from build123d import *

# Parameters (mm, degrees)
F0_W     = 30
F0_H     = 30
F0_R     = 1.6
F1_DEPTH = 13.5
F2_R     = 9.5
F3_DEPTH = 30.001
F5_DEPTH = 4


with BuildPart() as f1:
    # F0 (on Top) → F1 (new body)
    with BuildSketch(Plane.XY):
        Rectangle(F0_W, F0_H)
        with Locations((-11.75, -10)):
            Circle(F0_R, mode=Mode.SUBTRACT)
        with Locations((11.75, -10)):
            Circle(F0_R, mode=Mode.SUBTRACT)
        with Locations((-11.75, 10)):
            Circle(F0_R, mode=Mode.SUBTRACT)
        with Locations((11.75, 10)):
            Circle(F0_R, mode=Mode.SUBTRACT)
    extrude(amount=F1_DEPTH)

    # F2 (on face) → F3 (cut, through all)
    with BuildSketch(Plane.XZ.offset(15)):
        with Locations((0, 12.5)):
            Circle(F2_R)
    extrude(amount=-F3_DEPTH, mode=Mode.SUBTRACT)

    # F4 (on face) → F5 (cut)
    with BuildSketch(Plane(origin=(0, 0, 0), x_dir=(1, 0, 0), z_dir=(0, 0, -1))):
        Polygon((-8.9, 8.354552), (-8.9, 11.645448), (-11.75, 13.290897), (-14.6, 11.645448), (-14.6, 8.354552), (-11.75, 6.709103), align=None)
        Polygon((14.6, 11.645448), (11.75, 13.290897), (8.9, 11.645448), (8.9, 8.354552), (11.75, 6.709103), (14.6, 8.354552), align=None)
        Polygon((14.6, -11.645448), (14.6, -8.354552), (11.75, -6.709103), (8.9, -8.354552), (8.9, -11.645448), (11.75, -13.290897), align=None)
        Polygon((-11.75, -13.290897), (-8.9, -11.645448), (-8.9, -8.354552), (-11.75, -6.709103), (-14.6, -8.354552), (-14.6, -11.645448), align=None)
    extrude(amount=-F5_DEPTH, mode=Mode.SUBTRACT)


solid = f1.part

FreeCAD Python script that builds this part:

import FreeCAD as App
import Part
import Sketcher
from FreeCAD import Vector
Q = App.Units.Quantity


def add_polygon(sketch, points):
    """Adds a closed chain of lines whose ends are joined by coincident constraints."""
    first, n = sketch.GeometryCount, len(points)
    for a, b in zip(points, points[1:] + points[:1]):
        sketch.addGeometry(Part.LineSegment(App.Vector(*a, 0), App.Vector(*b, 0)), False)
    for i in range(n):
        sketch.addConstraint(Sketcher.Constraint("Coincident", first + i, 2, first + (i + 1) % n, 1))

doc = App.newDocument("Part")
body = doc.addObject("PartDesign::Body", "Body")

sketch1 = body.newObject("Sketcher::SketchObject", "Sketch")
sketch1.AttachmentSupport = (doc.getObject("XY_Plane"), [""])
sketch1.MapMode = "FlatFace"
add_polygon(sketch1, [(-15, 15), (-15, -15), (15, -15), (15, 15)])
sketch1.addGeometry(Part.Circle(Vector(-11.8, -10, 0), Vector(0, 0, 1), 1.6), False)
sketch1.addGeometry(Part.Circle(Vector(11.8, -10, 0), Vector(0, 0, 1), 1.6), False)
sketch1.addGeometry(Part.Circle(Vector(-11.8, 10, 0), Vector(0, 0, 1), 1.6), False)
sketch1.addGeometry(Part.Circle(Vector(11.8, 10, 0), Vector(0, 0, 1), 1.6), False)
sketch1.addConstraint([
    Sketcher.Constraint("Vertical", 0),
    Sketcher.Constraint("Horizontal", 1),
    Sketcher.Constraint("Vertical", 2),
    Sketcher.Constraint("Horizontal", 3),
    Sketcher.Constraint("Equal", 4, 5),
    Sketcher.Constraint("Equal", 5, 6),
    Sketcher.Constraint("Equal", 6, 7),
    Sketcher.Constraint("Symmetric", 5, 3, 6, 3, -1, 1),
    Sketcher.Constraint("Symmetric", 4, 3, 7, 3, -1, 1),
    Sketcher.Constraint("Symmetric", 0, 2, 2, 2, -1, 1),
    Sketcher.Constraint("Symmetric", 4, 3, 5, 3, -2),
    Sketcher.Constraint("Equal", 3, 0),
    Sketcher.Constraint("Diameter", 4, Q("3.2 mm")),
    Sketcher.Constraint("DistanceX", 1, 1, 1, 2, Q("30 mm")),
    Sketcher.Constraint("DistanceY", 4, 3, -1, 1, Q("10 mm")),
    Sketcher.Constraint("DistanceX", 4, 3, 5, 3, Q("23.5 mm")),
])
pad1 = body.newObject("PartDesign::Pad", "Pad")
pad1.Profile = sketch1
pad1.Length = 13.5

sketch2 = body.newObject("Sketcher::SketchObject", "Sketch001")
sketch2.AttachmentSupport = (doc.getObject("XZ_Plane"), [""])
sketch2.MapMode = "FlatFace"
sketch2.AttachmentOffset = App.Placement(Vector(0, 0, 15), App.Rotation())
sketch2.addGeometry(Part.Circle(Vector(0, 12, 0), Vector(0, 0, 1), 10), False)
sketch2.addConstraint([
    Sketcher.Constraint("PointOnObject", 0, 3, -2),
    Sketcher.Constraint("Diameter", 0, Q("19 mm")),
    Sketcher.Constraint("DistanceY", -1, 1, 0, 3, Q("12.5 mm")),
])
pocket1 = body.newObject("PartDesign::Pocket", "Pocket")
pocket1.Profile = sketch2
pocket1.Type = "ThroughAll"

sketch3 = body.newObject("Sketcher::SketchObject", "Sketch002")
sketch3.AttachmentSupport = (doc.getObject("XY_Plane"), [""])
sketch3.MapMode = "FlatFace"
add_polygon(sketch3, [(-8.9, -8.4), (-8.9, -11.6), (-11.8, -13.3), (-14.6, -11.6), (-14.6, -8.4), (-11.8, -6.7)])
add_polygon(sketch3, [(14.6, -11.6), (11.8, -13.3), (8.9, -11.6), (8.9, -8.4), (11.8, -6.7), (14.6, -8.4)])
add_polygon(sketch3, [(14.6, 11.6), (14.6, 8.4), (11.8, 6.7), (8.9, 8.4), (8.9, 11.6), (11.8, 13.3)])
add_polygon(sketch3, [(-11.8, 13.3), (-8.9, 11.6), (-8.9, 8.4), (-11.8, 6.7), (-14.6, 8.4), (-14.6, 11.6)])
sketch3.addConstraint([
    Sketcher.Constraint("Vertical", 0),
    Sketcher.Constraint("Vertical", 3),
    Sketcher.Constraint("Vertical", 8),
    Sketcher.Constraint("Vertical", 11),
    Sketcher.Constraint("Vertical", 12),
    Sketcher.Constraint("Vertical", 15),
    Sketcher.Constraint("Vertical", 19),
    Sketcher.Constraint("Vertical", 22),
    Sketcher.Constraint("Symmetric", 3, 2, 12, 2, -1, 1),
    Sketcher.Constraint("Symmetric", 4, 2, 13, 2, -1, 1),
    Sketcher.Constraint("Symmetric", 5, 2, 14, 2, -1, 1),
    Sketcher.Constraint("Symmetric", 1, 2, 16, 2, -1, 1),
    Sketcher.Constraint("Symmetric", 7, 2, 18, 2, -1, 1),
    Sketcher.Constraint("Symmetric", 9, 2, 20, 2, -1, 1),
    Sketcher.Constraint("Symmetric", 10, 2, 21, 2, -1, 1),
    Sketcher.Constraint("Symmetric", 6, 2, 23, 2, -1, 1),
    Sketcher.Constraint("Symmetric", 1, 2, 6, 2, -2),
    Sketcher.Constraint("Symmetric", 0, 2, 7, 2, -2),
    Sketcher.Constraint("Symmetric", 4, 2, 9, 2, -2),
    Sketcher.Constraint("Symmetric", 3, 2, 10, 2, -2),
    Sketcher.Constraint("Parallel", 1, 4),
    Sketcher.Constraint("Parallel", 2, 5),
    Sketcher.Constraint("Parallel", 4, 6),
    Sketcher.Constraint("Parallel", 5, 7),
    Sketcher.Constraint("Parallel", 6, 9),
    Sketcher.Constraint("Parallel", 13, 16),
    Sketcher.Constraint("Parallel", 14, 17),
    Sketcher.Constraint("Parallel", 16, 20),
    Sketcher.Constraint("Parallel", 20, 23),
    Sketcher.Constraint("Horizontal", 0, 2, 2, 2),
    Sketcher.Constraint("Horizontal", 3, 2, 5, 2),
    Sketcher.Constraint("Angle", 1, Q("-149.999989 deg")),
    Sketcher.Constraint("DistanceY", 11, 2, 12, 2, Q("20 mm")),
    Sketcher.Constraint("DistanceX", 0, 2, -1, 1, Q("8.9 mm")),
    Sketcher.Constraint("DistanceX", 2, 2, -1, 1, Q("14.6 mm")),
    Sketcher.Constraint("DistanceY", 0, 2, 0, 1, Q("3.290896 mm")),
])
pocket2 = body.newObject("PartDesign::Pocket", "Pocket001")
pocket2.Profile = sketch3
pocket2.Length = 4
pocket2.Reversed = True

doc.recompute()
